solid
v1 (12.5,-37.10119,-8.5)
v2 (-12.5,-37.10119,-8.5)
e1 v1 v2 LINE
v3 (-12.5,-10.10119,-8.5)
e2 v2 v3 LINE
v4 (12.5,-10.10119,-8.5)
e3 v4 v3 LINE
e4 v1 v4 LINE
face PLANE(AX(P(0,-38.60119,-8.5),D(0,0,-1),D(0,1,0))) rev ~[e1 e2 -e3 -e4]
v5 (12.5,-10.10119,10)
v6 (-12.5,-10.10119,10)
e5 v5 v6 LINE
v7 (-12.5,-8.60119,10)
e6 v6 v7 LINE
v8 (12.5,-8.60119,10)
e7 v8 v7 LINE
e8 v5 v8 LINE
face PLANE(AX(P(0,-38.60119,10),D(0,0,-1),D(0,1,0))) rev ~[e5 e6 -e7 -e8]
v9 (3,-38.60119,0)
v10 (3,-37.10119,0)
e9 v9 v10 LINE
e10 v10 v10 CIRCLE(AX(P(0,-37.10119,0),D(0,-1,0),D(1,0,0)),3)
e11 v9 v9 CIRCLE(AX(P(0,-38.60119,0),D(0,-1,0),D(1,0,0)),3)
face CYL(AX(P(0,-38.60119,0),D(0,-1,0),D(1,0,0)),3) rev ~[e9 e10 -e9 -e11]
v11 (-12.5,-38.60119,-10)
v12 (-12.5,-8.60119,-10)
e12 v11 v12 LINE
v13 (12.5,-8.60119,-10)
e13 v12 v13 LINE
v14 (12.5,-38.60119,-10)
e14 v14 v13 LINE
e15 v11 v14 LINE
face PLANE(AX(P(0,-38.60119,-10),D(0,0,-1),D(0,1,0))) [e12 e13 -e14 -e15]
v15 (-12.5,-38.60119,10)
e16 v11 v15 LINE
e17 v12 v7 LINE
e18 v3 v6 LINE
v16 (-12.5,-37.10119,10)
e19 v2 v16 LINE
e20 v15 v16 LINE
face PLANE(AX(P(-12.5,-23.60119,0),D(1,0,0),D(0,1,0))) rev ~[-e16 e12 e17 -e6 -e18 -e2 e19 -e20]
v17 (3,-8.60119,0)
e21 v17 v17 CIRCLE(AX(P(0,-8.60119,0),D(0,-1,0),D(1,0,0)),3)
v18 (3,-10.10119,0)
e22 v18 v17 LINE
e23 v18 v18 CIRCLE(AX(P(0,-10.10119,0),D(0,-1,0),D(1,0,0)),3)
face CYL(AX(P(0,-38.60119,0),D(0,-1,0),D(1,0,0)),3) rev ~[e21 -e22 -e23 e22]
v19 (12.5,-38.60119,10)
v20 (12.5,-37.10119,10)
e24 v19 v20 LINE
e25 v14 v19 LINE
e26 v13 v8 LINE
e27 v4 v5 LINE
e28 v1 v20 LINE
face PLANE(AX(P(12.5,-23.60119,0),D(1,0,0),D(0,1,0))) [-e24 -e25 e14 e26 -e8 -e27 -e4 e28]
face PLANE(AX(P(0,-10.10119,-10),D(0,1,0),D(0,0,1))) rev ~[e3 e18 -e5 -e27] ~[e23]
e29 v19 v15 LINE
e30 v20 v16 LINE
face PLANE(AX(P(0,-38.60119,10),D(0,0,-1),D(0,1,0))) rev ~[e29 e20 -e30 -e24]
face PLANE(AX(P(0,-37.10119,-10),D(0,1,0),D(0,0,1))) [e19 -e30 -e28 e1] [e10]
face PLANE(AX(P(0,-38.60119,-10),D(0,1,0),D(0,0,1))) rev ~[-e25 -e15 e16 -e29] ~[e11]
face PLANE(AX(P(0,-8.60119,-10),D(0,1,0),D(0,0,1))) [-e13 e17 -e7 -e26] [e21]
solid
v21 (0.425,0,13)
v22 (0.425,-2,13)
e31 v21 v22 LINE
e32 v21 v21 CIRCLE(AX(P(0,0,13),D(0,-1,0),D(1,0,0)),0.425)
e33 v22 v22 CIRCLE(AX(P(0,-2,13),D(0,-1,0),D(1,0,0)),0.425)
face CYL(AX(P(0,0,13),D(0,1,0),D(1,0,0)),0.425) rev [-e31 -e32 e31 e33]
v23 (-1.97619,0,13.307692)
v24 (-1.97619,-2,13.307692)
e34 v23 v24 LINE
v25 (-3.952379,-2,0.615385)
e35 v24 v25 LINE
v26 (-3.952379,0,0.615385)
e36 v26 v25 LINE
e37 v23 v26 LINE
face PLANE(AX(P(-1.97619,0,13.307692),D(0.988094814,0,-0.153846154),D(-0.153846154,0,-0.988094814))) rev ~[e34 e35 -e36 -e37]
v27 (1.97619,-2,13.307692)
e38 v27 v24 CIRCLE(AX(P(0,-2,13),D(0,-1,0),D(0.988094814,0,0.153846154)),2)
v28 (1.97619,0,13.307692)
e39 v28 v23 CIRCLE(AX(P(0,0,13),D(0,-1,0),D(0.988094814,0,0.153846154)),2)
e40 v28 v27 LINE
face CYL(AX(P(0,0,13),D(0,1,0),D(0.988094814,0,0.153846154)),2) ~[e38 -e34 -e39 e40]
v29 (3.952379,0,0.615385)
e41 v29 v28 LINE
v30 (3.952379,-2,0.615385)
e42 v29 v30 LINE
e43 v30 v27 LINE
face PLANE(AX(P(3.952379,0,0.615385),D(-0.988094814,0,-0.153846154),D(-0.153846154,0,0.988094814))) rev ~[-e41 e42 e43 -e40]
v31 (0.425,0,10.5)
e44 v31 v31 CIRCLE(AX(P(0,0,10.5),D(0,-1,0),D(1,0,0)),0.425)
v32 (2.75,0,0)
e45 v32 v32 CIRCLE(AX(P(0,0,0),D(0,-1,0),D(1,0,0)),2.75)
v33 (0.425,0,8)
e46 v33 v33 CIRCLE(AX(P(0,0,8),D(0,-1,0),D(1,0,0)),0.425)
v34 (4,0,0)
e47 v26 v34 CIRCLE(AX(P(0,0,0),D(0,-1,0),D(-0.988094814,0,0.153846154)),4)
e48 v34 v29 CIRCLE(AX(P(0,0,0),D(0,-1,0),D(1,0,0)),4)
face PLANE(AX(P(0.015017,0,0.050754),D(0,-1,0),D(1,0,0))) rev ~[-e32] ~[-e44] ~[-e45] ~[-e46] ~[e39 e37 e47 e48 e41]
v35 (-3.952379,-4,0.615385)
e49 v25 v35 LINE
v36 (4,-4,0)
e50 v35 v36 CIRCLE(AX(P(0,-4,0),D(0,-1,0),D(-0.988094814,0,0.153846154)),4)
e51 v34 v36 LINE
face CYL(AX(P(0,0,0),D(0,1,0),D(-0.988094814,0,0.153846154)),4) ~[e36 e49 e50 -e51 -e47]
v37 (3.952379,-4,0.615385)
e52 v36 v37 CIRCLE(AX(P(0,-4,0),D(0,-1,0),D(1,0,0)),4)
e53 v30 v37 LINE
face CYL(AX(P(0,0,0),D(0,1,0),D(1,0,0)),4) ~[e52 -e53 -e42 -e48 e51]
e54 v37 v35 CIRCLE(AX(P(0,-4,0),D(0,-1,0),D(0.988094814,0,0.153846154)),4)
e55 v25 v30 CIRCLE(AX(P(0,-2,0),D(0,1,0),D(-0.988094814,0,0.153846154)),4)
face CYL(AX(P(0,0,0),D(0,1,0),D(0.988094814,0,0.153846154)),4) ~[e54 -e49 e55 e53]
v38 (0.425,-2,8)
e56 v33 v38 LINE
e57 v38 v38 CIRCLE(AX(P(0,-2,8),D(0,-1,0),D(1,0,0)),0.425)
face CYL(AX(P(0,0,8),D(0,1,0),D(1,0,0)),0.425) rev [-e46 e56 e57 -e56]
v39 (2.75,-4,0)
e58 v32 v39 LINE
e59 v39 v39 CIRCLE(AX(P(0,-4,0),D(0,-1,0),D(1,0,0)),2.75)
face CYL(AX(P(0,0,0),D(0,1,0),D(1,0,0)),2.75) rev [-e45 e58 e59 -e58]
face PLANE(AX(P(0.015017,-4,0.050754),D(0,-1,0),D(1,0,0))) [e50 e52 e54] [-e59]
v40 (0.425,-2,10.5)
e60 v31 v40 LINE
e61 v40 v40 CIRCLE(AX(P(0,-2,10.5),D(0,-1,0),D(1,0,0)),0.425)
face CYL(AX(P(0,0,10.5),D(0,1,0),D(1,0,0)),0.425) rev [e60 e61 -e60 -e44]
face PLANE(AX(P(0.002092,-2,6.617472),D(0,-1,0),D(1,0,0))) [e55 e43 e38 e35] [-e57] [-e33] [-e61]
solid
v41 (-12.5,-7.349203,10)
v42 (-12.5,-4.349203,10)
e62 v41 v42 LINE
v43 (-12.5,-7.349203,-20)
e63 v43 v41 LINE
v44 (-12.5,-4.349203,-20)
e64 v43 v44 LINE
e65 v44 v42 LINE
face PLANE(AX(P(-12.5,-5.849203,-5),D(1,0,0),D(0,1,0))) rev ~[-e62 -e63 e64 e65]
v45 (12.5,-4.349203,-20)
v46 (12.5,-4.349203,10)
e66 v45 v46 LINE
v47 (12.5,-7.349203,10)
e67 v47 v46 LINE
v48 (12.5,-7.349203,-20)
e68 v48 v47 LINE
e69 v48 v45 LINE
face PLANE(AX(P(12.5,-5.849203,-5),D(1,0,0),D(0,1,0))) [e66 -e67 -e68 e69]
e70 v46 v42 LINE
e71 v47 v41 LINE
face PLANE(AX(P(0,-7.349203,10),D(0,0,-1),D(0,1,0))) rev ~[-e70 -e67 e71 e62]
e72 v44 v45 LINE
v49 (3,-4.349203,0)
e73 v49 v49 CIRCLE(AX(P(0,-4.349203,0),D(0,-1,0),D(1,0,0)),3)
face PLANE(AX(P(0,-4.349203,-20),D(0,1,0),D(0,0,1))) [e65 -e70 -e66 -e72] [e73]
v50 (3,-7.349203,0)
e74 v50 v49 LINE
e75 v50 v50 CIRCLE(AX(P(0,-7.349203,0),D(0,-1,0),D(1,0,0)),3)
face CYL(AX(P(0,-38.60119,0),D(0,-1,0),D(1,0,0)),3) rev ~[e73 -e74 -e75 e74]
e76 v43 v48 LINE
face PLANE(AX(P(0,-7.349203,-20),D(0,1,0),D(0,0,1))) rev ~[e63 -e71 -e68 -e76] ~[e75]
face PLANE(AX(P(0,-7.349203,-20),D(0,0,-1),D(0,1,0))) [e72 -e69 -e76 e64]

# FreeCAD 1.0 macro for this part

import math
import FreeCAD as App
import Part
import Sketcher
from FreeCAD import Vector


def faces_at(feature, points):
    """Names of the faces that lie closest to the given points."""
    faces = feature.Shape.Faces
    near = lambda p: min(range(len(faces)), key=lambda i: faces[i].distToShape(Part.Vertex(*p))[0])
    return sorted({f"Face{near(p) + 1}" for p in points})


def add_polygon(sketch, points):
    """Adds a closed chain of lines whose ends are joined by coincident constraints."""
    first, n = sketch.GeometryCount, len(points)
    for a, b in zip(points, points[1:] + points[:1]):
        sketch.addGeometry(Part.LineSegment(App.Vector(*a, 0), App.Vector(*b, 0)), False)
    for i in range(n):
        sketch.addConstraint(Sketcher.Constraint("Coincident", first + i, 2, first + (i + 1) % n, 1))

doc = App.newDocument("Part")
params = doc.addObject("Spreadsheet::Sheet", "Params")
for row, (alias, value) in enumerate([
    ("sketch1_radius", "4 mm"),
    ("sketch1_radius2", "2 mm"),
    ("sketch1_diameter", "0.85 mm"),
    ("pad1_length", "2 mm"),
    ("sketch2_radius", "4 mm"),
    ("sketch2_diameter", "5.5 mm"),
    ("pad2_length", "4 mm"),
    ("sketch3_width", "30 mm"),
    ("sketch3_height", "20 mm"),
    ("pad3_length", "25 mm"),
    ("thickness_wall", "1.5 mm"),
    ("sketch4_width", "3 mm"),
    ("sketch4_height", "30 mm"),
    ("pad4_length", "25 mm"),
    ("sketch5_diameter", "6 mm"),
    ("pad5_length", "38.60219 mm"),
], start=1):
    params.set(f"A{row}", alias)
    params.set(f"B{row}", "=" + value)
    params.setAlias(f"B{row}", alias)

body = doc.addObject("PartDesign::Body", "Body")

sketch1 = body.newObject("Sketcher::SketchObject", "Sketch")
sketch1.AttachmentSupport = (doc.getObject("XZ_Plane"), [""])
sketch1.MapMode = "FlatFace"
sketch1.addGeometry(Part.ArcOfCircle(Part.Circle(Vector(0, 0, 0), Vector(0, 0, 1), 4), math.radians(9), math.radians(171)), False)
sketch1.addGeometry(Part.LineSegment(Vector(3.95, 0.62, 0), Vector(1.98, 13.31, 0)), False)
sketch1.addGeometry(Part.ArcOfCircle(Part.Circle(Vector(0, 13, 0), Vector(0, 0, 1), 2), math.radians(9), math.radians(171)), False)
sketch1.addGeometry(Part.LineSegment(Vector(-1.98, 13.31, 0), Vector(-3.95, 0.62, 0)), False)
sketch1.addGeometry(Part.Circle(Vector(0, 8, 0), Vector(0, 0, 1), 0.42), False)
sketch1.addGeometry(Part.Circle(Vector(0, 10.5, 0), Vector(0, 0, 1), 0.42), False)
sketch1.addGeometry(Part.Circle(Vector(0, 13, 0), Vector(0, 0, 1), 0.42), False)
sketch1.addConstraint(Sketcher.Constraint("Tangent", 0, 1, 1, 1))
sketch1.addConstraint(Sketcher.Constraint("Tangent", 1, 2, 2, 1))
sketch1.addConstraint(Sketcher.Constraint("Tangent", 2, 2, 3, 1))
sketch1.addConstraint(Sketcher.Constraint("Tangent", 3, 2, 0, 2))
sketch1.addConstraint(Sketcher.Constraint("Coincident", 0, 3, -1, 1))
sketch1.addConstraint(Sketcher.Constraint("Coincident", 6, 3, 2, 3))
sketch1.addConstraint(Sketcher.Constraint("Equal", 4, 5))
sketch1.addConstraint(Sketcher.Constraint("Equal", 5, 6))
sketch1.addConstraint(Sketcher.Constraint("PointOnObject", 2, 3, -2))
sketch1.addConstraint(Sketcher.Constraint("PointOnObject", 4, 3, -2))
sketch1.addConstraint(Sketcher.Constraint("PointOnObject", 5, 3, -2))
sketch1.addConstraint(Sketcher.Constraint("Radius", 0, 4.0))
sketch1.addConstraint(Sketcher.Constraint("Radius", 2, 2.0))
sketch1.addConstraint(Sketcher.Constraint("Diameter", 4, 0.85))
sketch1.addConstraint(Sketcher.Constraint("DistanceY", -1, 1, 2, 3, 13.0))
sketch1.addConstraint(Sketcher.Constraint("DistanceY", -1, 1, 4, 3, 8.0))
sketch1.addConstraint(Sketcher.Constraint("DistanceY", -1, 1, 5, 3, 10.5))
sketch1.setExpression("Constraints[11]", "Params.sketch1_radius")
sketch1.setExpression("Constraints[12]", "Params.sketch1_radius2")
sketch1.setExpression("Constraints[13]", "Params.sketch1_diameter")
pad1 = body.newObject("PartDesign::Pad", "Pad")
pad1.Profile = sketch1
pad1.setExpression("Length", "Params.pad1_length")

sketch2 = body.newObject("Sketcher::SketchObject", "Sketch001")
sketch2.AttachmentSupport = (doc.getObject("XZ_Plane"), [""])
sketch2.MapMode = "FlatFace"
sketch2.addGeometry(Part.ArcOfCircle(Part.Circle(Vector(0, 0, 0), Vector(0, 0, 1), 4), math.radians(171), math.radians(360)), False)
sketch2.addGeometry(Part.ArcOfCircle(Part.Circle(Vector(0, 0, 0), Vector(0, 0, 1), 4), math.radians(0), math.radians(8.85)), False)
sketch2.addGeometry(Part.ArcOfCircle(Part.Circle(Vector(0, 0, 0), Vector(0, 0, 1), 4), math.radians(9), math.radians(171)), False)
sketch2.addGeometry(Part.Circle(Vector(0, 0, 0), Vector(0, 0, 1), 2.8), False)
sketch2.addConstraint(Sketcher.Constraint("Tangent", 0, 2, 1, 1))
sketch2.addConstraint(Sketcher.Constraint("Tangent", 1, 2, 2, 1))
sketch2.addConstraint(Sketcher.Constraint("Tangent", 2, 2, 0, 1))
sketch2.addConstraint(Sketcher.Constraint("Coincident", 0, 3, -1, 1))
sketch2.addConstraint(Sketcher.Constraint("Coincident", 3, 3, -1, 1))
sketch2.addConstraint(Sketcher.Constraint("PointOnObject", 0, 2, -1))
sketch2.addConstraint(Sketcher.Constraint("Horizontal", 1, 2, 2, 2))
sketch2.addConstraint(Sketcher.Constraint("Radius", 0, 4.0))
sketch2.addConstraint(Sketcher.Constraint("Diameter", 3, 5.5))
sketch2.addConstraint(Sketcher.Constraint("DistanceX", -1, 1, 1, 2, 3.952379))
sketch2.setExpression("Constraints[7]", "Params.sketch2_radius")
sketch2.setExpression("Constraints[8]", "Params.sketch2_diameter")
pad2 = body.newObject("PartDesign::Pad", "Pad001")
pad2.Profile = sketch2
pad2.setExpression("Length", "Params.pad2_length")
body2 = doc.addObject("PartDesign::Body", "Body001")

sketch3 = body2.newObject("Sketcher::SketchObject", "Sketch002")
sketch3.AttachmentSupport = (doc.getObject("YZ_Plane001"), [""])
sketch3.MapMode = "FlatFace"
add_polygon(sketch3, [(-39, 10), (-39, -10), (-9, -10), (-9, 10)])
sketch3.addConstraint(Sketcher.Constraint("Vertical", 0))
sketch3.addConstraint(Sketcher.Constraint("Horizontal", 1))
sketch3.addConstraint(Sketcher.Constraint("Vertical", 2))
sketch3.addConstraint(Sketcher.Constraint("Horizontal", 3))
sketch3.addConstraint(Sketcher.Constraint("DistanceX", 1, 1, 1, 2, 30.0))
sketch3.addConstraint(Sketcher.Constraint("DistanceY", 0, 2, 0, 1, 20.0))
sketch3.addConstraint(Sketcher.Constraint("DistanceY", 0, 2, -1, 1, 10.0))
sketch3.addConstraint(Sketcher.Constraint("DistanceX", 0, 2, -1, 1, 38.60119))
sketch3.setExpression("Constraints[8]", "Params.sketch3_width")
sketch3.setExpression("Constraints[9]", "Params.sketch3_height")
pad3 = body2.newObject("PartDesign::Pad", "Pad002")
pad3.Profile = sketch3
pad3.setExpression("Length", "Params.pad3_length")
pad3.Midplane = True
doc.recompute()

thickness = body2.newObject("PartDesign::Thickness", "Thickness")
thickness.Base = (pad3, faces_at(pad3, [(12.5, -23.601, 0), (0, -23.601, 10), (-12.5, -23.601, 0)]))
thickness.setExpression("Value", "Params.thickness_wall")
thickness.Reversed = True
thickness.Join = "Arc"
body3 = doc.addObject("PartDesign::Body", "Body002")

sketch4 = body3.newObject("Sketcher::SketchObject", "Sketch003")
sketch4.AttachmentSupport = (doc.getObject("YZ_Plane002"), [""])
sketch4.MapMode = "FlatFace"
add_polygon(sketch4, [(-7.3, 10), (-7.3, -20), (-4.3, -20), (-4.3, 10)])
sketch4.addConstraint(Sketcher.Constraint("Vertical", 0))
sketch4.addConstraint(Sketcher.Constraint("Horizontal", 1))
sketch4.addConstraint(Sketcher.Constraint("Vertical", 2))
sketch4.addConstraint(Sketcher.Constraint("Horizontal", 3))
sketch4.addConstraint(Sketcher.Constraint("DistanceX", 1, 1, 1, 2, 3.0))
sketch4.addConstraint(Sketcher.Constraint("DistanceY", 0, 2, 0, 1, 30.0))
sketch4.addConstraint(Sketcher.Constraint("DistanceY", 0, 2, -1, 1, 20.0))
sketch4.addConstraint(Sketcher.Constraint("DistanceX", 0, 2, -1, 1, 7.349203))
sketch4.setExpression("Constraints[8]", "Params.sketch4_width")
sketch4.setExpression("Constraints[9]", "Params.sketch4_height")
pad4 = body3.newObject("PartDesign::Pad", "Pad003")
pad4.Profile = sketch4
pad4.setExpression("Length", "Params.pad4_length")
pad4.Midplane = True
body4 = doc.addObject("PartDesign::Body", "Body003")

sketch5 = body4.newObject("Sketcher::SketchObject", "Sketch004")
sketch5.AttachmentSupport = (doc.getObject("XZ_Plane003"), [""])
sketch5.MapMode = "FlatFace"
sketch5.AttachmentOffset = App.Placement(Vector(0, 0, 38.60119), App.Rotation())
sketch5.addGeometry(Part.Circle(Vector(0, 0, 0), Vector(0, 0, 1), 3), False)
sketch5.addConstraint(Sketcher.Constraint("Coincident", 0, 3, -1, 1))
sketch5.addConstraint(Sketcher.Constraint("Diameter", 0, 6.0))
sketch5.setExpression("Constraints[1]", "Params.sketch5_diameter")
pad5 = body4.newObject("PartDesign::Pad", "Pad004")
pad5.Profile = sketch5
pad5.setExpression("Length", "Params.pad5_length")
pad5.Reversed = True
doc.recompute()

body5 = doc.addObject("PartDesign::Body", "Body004")
body5.BaseFeature = body4
boolean = body2.newObject("PartDesign::Boolean", "Boolean")
boolean.Type = "Cut"
boolean.addObjects([body5])
doc.recompute()

boolean2 = body3.newObject("PartDesign::Boolean", "Boolean001")
boolean2.Type = "Cut"
boolean2.addObjects([body4])

doc.recompute()
